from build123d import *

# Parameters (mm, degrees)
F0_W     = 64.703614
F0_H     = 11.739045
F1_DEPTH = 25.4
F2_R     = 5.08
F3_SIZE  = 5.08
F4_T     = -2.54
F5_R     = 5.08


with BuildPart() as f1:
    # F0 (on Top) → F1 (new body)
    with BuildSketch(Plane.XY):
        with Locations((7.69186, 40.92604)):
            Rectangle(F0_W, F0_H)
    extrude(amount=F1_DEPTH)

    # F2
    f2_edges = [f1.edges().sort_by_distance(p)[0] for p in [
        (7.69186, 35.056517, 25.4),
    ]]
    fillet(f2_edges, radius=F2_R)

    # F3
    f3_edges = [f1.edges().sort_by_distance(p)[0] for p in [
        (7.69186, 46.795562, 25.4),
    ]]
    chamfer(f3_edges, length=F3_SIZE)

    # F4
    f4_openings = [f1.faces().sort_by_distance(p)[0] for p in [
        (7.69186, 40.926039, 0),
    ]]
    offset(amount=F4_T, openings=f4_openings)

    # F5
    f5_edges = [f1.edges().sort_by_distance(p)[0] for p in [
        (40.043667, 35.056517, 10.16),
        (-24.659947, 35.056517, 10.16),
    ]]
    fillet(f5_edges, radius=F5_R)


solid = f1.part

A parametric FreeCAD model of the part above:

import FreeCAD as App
import Part
import Sketcher
from FreeCAD import Vector
Q = App.Units.Quantity


def edges_at(feature, points):
    """Names of the edges that pass closest to the given points."""
    edges = feature.Shape.Edges
    near = lambda p: min(range(len(edges)), key=lambda i: edges[i].distToShape(Part.Vertex(*p))[0])
    return sorted({f"Edge{near(p) + 1}" for p in points})


def faces_at(feature, points):
    """Names of the faces that lie closest to the given points."""
    faces = feature.Shape.Faces
    near = lambda p: min(range(len(faces)), key=lambda i: faces[i].distToShape(Part.Vertex(*p))[0])
    return sorted({f"Face{near(p) + 1}" for p in points})

doc = App.newDocument("Part")
params = doc.addObject("Spreadsheet::Sheet", "Params")
for row, (alias, value) in enumerate([
    ("pad1_length", "1 in"),
    ("fillet_radius", "0.2 in"),
    ("chamfer_size", "0.2 in"),
    ("thickness_wall", "0.1 in"),
    ("fillet2_radius", "0.2 in"),
], start=1):
    params.set(f"A{row}", alias)
    params.set(f"B{row}", "=" + value)
    params.setAlias(f"B{row}", alias)

body = doc.addObject("PartDesign::Body", "Body")

# Sketch on XY plane
sketch1 = body.newObject("Sketcher::SketchObject", "Sketch")
sketch1.AttachmentSupport = (doc.getObject("XY_Plane"), [""])
sketch1.MapMode = "FlatFace"
sketch1.addGeometry(Part.LineSegment(Vector(-25, 47, 0), Vector(-25, 35, 0)), False)
sketch1.addGeometry(Part.LineSegment(Vector(-25, 35, 0), Vector(40, 35, 0)), False)
sketch1.addGeometry(Part.LineSegment(Vector(40, 35, 0), Vector(40, 47, 0)), False)
sketch1.addGeometry(Part.LineSegment(Vector(40, 47, 0), Vector(-25, 47, 0)), False)
sketch1.addConstraint(Sketcher.Constraint("Coincident", 0, 2, 1, 1))
sketch1.addConstraint(Sketcher.Constraint("Coincident", 1, 2, 2, 1))
sketch1.addConstraint(Sketcher.Constraint("Coincident", 2, 2, 3, 1))
sketch1.addConstraint(Sketcher.Constraint("Coincident", 3, 2, 0, 1))
sketch1.addConstraint(Sketcher.Constraint("Vertical", 0))
sketch1.addConstraint(Sketcher.Constraint("Horizontal", 1))
sketch1.addConstraint(Sketcher.Constraint("Vertical", 2))
sketch1.addConstraint(Sketcher.Constraint("Horizontal", 3))
sketch1.addConstraint(Sketcher.Constraint("DistanceX", 1, 1, 1, 2, Q("64.703614 mm")))
sketch1.addConstraint(Sketcher.Constraint("DistanceY", 0, 2, 0, 1, Q("11.739045 mm")))
sketch1.addConstraint(Sketcher.Constraint("DistanceX", 0, 2, -1, 1, Q("24.659947 mm")))
sketch1.addConstraint(Sketcher.Constraint("DistanceY", -1, 1, 0, 2, Q("35.056517 mm")))
pad1 = body.newObject("PartDesign::Pad", "Pad")
pad1.Profile = sketch1
pad1.setExpression("Length", "Params.pad1_length")
doc.recompute()

fillet = body.newObject("PartDesign::Fillet", "Fillet")
fillet.Base = (pad1, edges_at(pad1, [(7.692, 35.057, 25.4)]))
fillet.setExpression("Radius", "Params.fillet_radius")
doc.recompute()

chamfer = body.newObject("PartDesign::Chamfer", "Chamfer")
chamfer.Base = (fillet, edges_at(fillet, [(7.692, 46.796, 25.4)]))
chamfer.setExpression("Size", "Params.chamfer_size")
doc.recompute()

thickness = body.newObject("PartDesign::Thickness", "Thickness")
thickness.Base = (chamfer, faces_at(chamfer, [(7.692, 40.926, 0)]))
thickness.setExpression("Value", "Params.thickness_wall")
thickness.Reversed = True
thickness.Join = "Arc"
doc.recompute()

fillet2 = body.newObject("PartDesign::Fillet", "Fillet001")
fillet2.Base = (thickness, edges_at(thickness, [(40.044, 35.057, 10.16), (-24.66, 35.057, 10.16)]))
fillet2.setExpression("Radius", "Params.fillet2_radius")

doc.recompute()
